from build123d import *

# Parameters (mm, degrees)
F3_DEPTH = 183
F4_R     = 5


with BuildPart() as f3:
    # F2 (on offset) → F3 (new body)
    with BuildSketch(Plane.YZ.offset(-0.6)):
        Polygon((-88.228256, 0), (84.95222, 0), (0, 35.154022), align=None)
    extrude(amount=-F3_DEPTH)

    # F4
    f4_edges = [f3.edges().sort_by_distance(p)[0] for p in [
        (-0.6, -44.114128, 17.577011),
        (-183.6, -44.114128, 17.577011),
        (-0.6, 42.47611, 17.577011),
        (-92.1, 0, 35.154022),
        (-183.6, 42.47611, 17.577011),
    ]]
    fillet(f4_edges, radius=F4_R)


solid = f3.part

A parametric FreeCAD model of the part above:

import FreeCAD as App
import Part
import Sketcher

V = App.Vector


def edges_at(feature, points):
    """Names of the edges that pass closest to the given points."""
    edges = feature.Shape.Edges
    near = lambda p: min(range(len(edges)), key=lambda i: edges[i].distToShape(Part.Vertex(*p))[0])
    return sorted({f"Edge{near(p) + 1}" for p in points})

doc = App.newDocument("Part")
body = doc.addObject("PartDesign::Body", "Body")

sketch1 = body.newObject("Sketcher::SketchObject", "Sketch")
sketch1.AttachmentSupport = (doc.getObject("YZ_Plane"), [""])
sketch1.MapMode = "FlatFace"
sketch1.AttachmentOffset = App.Placement(V(0, 0, -0.6), App.Rotation())
sketch1.addGeometry([
    Part.LineSegment(V(-88.228256, 0, 0), V(84.95222, 0, 0)),
    Part.LineSegment(V(84.95222, 0, 0), V(0, 35.154022, 0)),
    Part.LineSegment(V(0, 35.154022, 0), V(-88.228256, 0, 0)),
], False)
sketch1.addConstraint([
    Sketcher.Constraint("Coincident", 0, 2, 1, 1),
    Sketcher.Constraint("Coincident", 1, 2, 2, 1),
    Sketcher.Constraint("Coincident", 2, 2, 0, 1),
    Sketcher.Constraint("Horizontal", 0),
    Sketcher.Constraint("PointOnObject", 0, 2, -1),
    Sketcher.Constraint("PointOnObject", 1, 2, -2),
    Sketcher.Constraint("Distance", 2, 94.973841),
    Sketcher.Constraint("DistanceX", 0, 1, 0, 2, 173.180476),
    Sketcher.Constraint("DistanceX", -1, 1, 0, 2, 84.95222),
])
pad1 = body.newObject("PartDesign::Pad", "Pad")
pad1.Profile = sketch1
pad1.Length = 183
pad1.Reversed = True
doc.recompute()

fillet = body.newObject("PartDesign::Fillet", "Fillet")
fillet.Base = (pad1, edges_at(pad1, [
    (-0.6, -44.114, 17.577),
    (-183.6, -44.114, 17.577),
    (-0.6, 42.476, 17.577),
    (-92.1, 0, 35.154),
    (-183.6, 42.476, 17.577),
]))
fillet.Radius = 5

doc.recompute()
